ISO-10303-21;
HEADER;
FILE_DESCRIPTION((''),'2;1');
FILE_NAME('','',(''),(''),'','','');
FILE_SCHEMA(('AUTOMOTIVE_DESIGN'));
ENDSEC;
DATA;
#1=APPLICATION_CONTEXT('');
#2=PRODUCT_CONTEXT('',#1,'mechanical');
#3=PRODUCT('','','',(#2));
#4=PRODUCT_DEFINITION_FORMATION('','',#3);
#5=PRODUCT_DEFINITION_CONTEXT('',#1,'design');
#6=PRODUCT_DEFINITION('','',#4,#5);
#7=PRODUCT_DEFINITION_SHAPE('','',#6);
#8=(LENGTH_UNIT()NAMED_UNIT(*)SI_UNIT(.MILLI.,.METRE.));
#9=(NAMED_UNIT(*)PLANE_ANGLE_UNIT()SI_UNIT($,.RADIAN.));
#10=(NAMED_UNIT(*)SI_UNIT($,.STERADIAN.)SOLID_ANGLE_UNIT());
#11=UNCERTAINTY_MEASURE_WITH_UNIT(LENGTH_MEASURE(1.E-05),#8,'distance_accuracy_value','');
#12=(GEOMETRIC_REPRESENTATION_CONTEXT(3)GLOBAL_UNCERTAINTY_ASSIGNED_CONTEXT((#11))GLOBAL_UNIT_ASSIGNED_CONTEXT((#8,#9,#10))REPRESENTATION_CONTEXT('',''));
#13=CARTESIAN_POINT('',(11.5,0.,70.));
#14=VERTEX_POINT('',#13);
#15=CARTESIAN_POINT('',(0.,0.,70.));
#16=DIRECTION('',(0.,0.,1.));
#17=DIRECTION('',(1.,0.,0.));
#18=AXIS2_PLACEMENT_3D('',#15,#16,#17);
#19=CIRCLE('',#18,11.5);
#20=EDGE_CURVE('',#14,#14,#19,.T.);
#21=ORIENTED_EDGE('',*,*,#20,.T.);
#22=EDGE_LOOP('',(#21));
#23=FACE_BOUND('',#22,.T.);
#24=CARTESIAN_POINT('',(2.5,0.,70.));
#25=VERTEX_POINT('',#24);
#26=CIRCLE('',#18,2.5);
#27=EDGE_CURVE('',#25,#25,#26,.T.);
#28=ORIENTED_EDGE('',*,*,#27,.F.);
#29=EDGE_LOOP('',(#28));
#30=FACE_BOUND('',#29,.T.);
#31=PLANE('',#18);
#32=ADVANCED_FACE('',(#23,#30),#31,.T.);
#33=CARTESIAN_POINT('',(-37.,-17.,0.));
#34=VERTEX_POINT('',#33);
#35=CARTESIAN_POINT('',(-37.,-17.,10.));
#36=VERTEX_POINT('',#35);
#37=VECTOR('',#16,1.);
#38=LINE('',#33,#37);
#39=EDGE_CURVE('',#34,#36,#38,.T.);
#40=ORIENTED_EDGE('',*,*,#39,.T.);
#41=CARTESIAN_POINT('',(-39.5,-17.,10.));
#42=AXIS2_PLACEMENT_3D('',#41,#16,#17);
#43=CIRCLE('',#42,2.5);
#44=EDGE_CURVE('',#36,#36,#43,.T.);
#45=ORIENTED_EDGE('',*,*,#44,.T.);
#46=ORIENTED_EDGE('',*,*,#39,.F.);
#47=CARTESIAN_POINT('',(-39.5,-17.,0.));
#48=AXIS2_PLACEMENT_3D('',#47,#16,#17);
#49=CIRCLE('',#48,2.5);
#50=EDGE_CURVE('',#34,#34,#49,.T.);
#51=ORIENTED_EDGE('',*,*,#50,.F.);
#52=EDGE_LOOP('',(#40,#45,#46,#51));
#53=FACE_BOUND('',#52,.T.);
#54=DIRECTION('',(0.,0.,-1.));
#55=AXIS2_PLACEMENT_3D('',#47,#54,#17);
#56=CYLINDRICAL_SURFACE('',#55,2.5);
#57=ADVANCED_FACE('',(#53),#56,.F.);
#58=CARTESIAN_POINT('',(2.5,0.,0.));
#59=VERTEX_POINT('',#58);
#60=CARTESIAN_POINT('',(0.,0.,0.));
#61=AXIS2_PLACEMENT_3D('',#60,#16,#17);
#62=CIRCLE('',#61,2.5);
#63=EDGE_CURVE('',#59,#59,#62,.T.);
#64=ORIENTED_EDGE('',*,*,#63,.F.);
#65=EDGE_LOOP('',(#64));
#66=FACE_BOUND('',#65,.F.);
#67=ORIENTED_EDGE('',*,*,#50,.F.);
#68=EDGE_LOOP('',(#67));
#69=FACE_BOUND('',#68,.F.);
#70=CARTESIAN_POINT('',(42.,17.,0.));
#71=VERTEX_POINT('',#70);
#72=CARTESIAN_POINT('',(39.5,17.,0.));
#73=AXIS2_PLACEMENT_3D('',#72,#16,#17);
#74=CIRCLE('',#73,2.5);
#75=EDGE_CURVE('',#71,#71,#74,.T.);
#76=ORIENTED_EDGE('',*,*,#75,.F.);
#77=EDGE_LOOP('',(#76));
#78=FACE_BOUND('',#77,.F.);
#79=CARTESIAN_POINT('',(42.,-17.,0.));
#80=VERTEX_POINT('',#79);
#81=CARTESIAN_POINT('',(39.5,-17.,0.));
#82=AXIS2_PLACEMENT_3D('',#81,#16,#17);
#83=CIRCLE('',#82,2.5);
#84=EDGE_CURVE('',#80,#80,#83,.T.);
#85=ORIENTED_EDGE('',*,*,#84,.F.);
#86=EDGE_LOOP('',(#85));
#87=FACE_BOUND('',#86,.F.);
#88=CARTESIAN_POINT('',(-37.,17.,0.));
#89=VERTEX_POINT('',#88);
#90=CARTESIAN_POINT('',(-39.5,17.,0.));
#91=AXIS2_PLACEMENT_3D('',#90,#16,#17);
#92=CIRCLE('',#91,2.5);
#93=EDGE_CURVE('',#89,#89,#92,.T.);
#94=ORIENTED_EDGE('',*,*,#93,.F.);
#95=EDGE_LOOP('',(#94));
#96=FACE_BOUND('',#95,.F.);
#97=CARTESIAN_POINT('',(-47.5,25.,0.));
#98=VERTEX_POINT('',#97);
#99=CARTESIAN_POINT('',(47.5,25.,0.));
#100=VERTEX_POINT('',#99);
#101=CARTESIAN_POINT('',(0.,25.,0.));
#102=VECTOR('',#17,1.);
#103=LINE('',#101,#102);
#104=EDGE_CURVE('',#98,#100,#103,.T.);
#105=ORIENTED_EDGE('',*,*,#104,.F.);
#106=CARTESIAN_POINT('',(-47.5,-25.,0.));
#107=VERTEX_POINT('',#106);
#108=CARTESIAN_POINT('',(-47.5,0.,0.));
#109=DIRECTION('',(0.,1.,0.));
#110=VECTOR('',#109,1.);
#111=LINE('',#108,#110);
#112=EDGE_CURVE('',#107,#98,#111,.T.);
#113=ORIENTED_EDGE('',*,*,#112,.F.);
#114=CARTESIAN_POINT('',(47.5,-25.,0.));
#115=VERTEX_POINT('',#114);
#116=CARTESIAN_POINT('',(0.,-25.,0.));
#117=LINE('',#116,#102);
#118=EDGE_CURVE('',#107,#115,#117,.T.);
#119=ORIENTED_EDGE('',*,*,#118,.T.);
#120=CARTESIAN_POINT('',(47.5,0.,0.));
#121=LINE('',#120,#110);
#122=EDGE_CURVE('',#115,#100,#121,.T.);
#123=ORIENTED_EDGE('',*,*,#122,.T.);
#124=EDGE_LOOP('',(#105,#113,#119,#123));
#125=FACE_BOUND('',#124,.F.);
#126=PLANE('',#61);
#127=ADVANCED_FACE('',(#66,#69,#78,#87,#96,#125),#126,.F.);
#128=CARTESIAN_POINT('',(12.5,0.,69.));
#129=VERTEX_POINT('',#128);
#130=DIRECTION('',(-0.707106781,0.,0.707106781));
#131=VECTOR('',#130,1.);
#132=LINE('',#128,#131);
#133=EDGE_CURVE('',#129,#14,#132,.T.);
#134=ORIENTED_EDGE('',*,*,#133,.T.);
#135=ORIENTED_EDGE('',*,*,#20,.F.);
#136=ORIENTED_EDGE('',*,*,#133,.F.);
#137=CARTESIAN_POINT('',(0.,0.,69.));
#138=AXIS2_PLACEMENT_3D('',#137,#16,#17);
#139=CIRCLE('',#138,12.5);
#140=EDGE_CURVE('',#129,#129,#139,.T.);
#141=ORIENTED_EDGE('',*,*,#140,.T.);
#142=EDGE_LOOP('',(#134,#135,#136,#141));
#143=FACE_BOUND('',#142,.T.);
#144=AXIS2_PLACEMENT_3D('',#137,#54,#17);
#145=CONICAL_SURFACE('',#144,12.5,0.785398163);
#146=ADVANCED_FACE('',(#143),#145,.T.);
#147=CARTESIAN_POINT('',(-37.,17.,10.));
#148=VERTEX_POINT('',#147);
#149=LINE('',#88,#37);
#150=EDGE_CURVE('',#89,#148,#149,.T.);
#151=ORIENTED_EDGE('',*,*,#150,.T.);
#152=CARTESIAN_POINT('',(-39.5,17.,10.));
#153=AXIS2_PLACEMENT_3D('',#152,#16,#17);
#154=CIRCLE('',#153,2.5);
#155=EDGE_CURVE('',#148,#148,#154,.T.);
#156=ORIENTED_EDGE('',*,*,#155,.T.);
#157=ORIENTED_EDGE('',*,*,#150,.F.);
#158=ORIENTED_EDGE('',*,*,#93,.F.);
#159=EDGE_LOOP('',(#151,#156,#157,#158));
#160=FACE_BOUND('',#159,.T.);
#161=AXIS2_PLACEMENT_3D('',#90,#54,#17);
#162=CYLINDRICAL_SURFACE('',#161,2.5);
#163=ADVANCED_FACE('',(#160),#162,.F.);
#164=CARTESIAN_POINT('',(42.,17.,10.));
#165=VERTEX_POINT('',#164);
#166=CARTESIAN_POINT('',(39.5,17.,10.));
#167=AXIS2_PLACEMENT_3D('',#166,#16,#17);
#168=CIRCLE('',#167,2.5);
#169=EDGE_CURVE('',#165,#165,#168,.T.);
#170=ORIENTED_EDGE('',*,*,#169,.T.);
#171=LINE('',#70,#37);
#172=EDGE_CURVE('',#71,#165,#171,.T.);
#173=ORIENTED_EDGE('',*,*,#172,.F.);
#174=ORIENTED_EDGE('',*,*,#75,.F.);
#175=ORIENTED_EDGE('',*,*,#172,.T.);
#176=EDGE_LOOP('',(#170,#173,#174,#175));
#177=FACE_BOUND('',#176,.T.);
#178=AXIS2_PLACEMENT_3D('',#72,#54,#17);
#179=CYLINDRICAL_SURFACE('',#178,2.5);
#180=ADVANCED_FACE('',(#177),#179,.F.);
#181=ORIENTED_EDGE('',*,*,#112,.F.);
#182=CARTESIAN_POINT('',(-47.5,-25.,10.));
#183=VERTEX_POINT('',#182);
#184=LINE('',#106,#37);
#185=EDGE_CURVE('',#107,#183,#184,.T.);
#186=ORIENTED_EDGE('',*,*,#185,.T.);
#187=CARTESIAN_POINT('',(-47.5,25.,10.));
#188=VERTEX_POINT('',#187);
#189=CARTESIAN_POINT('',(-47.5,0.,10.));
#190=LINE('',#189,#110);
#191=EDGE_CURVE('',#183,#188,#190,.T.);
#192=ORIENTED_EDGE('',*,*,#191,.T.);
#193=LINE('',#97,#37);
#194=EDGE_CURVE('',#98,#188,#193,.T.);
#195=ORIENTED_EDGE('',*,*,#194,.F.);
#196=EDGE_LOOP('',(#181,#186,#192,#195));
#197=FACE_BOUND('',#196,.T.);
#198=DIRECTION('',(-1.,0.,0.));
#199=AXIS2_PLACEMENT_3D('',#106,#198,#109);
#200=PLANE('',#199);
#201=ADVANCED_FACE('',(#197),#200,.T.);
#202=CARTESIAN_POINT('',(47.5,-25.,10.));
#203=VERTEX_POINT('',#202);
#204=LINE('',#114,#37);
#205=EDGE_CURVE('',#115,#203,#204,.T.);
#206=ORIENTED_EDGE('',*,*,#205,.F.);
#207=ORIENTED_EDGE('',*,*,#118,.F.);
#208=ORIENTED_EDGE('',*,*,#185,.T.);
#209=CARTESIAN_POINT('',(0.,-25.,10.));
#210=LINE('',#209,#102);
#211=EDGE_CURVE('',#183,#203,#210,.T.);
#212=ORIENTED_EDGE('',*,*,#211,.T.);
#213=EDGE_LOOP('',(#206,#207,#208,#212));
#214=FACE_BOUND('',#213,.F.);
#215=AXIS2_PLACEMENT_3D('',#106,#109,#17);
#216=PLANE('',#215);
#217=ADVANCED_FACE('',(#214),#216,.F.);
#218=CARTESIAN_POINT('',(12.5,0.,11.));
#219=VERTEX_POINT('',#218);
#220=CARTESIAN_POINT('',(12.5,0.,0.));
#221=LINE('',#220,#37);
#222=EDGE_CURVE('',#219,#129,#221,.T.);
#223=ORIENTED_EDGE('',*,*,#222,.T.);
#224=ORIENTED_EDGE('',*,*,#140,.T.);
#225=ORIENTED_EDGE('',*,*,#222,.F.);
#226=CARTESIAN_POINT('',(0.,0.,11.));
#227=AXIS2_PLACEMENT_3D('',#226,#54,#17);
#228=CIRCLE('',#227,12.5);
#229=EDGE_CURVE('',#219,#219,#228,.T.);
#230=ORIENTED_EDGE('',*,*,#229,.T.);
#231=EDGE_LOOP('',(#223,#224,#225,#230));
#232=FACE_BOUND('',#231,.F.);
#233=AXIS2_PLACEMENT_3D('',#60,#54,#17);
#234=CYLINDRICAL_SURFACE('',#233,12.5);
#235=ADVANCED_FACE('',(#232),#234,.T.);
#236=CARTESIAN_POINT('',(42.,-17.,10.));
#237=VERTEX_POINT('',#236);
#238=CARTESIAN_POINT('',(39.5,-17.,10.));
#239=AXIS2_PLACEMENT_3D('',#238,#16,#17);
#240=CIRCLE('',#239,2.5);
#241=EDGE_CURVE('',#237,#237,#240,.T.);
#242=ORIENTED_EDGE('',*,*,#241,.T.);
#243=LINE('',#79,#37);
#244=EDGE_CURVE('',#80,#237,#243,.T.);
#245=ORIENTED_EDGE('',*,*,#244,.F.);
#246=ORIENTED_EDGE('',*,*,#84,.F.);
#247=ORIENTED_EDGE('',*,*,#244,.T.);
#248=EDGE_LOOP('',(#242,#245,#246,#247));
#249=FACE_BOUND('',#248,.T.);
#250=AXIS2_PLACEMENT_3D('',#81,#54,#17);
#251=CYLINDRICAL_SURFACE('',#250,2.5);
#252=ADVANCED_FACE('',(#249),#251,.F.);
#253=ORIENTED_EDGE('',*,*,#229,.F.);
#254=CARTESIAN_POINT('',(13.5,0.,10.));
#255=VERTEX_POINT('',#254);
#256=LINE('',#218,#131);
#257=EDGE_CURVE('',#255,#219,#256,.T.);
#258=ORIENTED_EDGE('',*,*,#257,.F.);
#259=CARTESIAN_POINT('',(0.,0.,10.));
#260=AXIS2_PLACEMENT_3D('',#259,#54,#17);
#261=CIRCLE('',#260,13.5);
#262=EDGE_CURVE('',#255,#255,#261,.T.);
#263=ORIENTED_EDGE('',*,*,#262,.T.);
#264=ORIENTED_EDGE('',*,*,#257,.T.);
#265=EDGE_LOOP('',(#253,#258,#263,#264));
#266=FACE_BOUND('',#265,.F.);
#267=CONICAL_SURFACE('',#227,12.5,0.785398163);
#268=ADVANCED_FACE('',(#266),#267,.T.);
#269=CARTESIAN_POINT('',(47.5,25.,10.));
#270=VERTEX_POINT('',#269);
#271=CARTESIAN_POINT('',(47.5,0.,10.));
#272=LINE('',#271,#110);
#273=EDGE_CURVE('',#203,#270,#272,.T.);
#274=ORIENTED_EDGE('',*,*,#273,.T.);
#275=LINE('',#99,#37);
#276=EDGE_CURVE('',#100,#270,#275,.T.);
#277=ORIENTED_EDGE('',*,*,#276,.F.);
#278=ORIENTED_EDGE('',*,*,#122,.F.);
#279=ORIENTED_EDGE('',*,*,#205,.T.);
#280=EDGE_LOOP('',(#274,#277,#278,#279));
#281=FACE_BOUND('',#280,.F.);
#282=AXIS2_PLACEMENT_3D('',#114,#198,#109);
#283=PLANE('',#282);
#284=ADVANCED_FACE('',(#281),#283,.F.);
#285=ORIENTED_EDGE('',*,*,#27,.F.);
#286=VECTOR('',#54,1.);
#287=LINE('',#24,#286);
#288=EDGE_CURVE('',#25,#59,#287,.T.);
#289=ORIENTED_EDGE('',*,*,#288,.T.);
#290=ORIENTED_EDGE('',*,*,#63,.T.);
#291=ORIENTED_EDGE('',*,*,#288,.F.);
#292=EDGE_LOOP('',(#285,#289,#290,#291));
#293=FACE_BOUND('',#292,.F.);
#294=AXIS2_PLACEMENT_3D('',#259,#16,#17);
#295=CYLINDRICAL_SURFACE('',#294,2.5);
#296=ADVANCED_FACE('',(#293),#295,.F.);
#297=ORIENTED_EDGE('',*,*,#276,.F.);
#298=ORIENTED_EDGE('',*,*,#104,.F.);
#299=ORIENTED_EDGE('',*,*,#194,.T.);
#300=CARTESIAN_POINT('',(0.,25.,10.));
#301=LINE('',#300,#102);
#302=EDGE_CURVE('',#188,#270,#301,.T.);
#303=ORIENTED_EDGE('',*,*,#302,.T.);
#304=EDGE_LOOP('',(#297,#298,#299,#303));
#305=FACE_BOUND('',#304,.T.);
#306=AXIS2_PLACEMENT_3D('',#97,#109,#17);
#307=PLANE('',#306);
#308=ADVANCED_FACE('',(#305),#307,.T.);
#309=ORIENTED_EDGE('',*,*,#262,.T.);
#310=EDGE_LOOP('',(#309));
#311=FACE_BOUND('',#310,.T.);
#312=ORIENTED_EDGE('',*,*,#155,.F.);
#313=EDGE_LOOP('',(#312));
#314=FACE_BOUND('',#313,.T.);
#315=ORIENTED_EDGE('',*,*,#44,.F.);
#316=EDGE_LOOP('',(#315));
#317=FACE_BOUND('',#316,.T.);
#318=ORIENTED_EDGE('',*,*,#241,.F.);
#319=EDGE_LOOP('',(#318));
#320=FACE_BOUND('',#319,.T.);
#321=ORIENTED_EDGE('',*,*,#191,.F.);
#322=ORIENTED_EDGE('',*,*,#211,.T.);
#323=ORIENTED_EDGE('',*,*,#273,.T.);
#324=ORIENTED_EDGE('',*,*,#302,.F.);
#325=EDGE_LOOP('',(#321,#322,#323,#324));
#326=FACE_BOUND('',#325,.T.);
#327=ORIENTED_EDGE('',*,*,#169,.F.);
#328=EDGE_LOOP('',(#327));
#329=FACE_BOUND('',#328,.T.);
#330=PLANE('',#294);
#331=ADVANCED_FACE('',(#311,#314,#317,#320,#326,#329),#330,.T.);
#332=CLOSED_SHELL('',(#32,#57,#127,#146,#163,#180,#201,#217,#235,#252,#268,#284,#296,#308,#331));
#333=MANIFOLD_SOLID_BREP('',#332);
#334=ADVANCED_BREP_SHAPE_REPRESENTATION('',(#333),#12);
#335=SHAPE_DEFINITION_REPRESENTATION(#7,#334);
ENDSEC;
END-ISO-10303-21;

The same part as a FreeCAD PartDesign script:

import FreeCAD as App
import Part
import Sketcher
from FreeCAD import Vector
Q = App.Units.Quantity


def edges_at(feature, points):
    """Names of the edges that pass closest to the given points."""
    edges = feature.Shape.Edges
    near = lambda p: min(range(len(edges)), key=lambda i: edges[i].distToShape(Part.Vertex(*p))[0])
    return sorted({f"Edge{near(p) + 1}" for p in points})


def add_polygon(sketch, points):
    """Adds a closed chain of lines whose ends are joined by coincident constraints."""
    first, n = sketch.GeometryCount, len(points)
    for a, b in zip(points, points[1:] + points[:1]):
        sketch.addGeometry(Part.LineSegment(App.Vector(*a, 0), App.Vector(*b, 0)), False)
    for i in range(n):
        sketch.addConstraint(Sketcher.Constraint("Coincident", first + i, 2, first + (i + 1) % n, 1))

doc = App.newDocument("Part")
body = doc.addObject("PartDesign::Body", "Body")

# Sketch on XY plane
sketch1 = body.newObject("Sketcher::SketchObject", "Sketch")
sketch1.AttachmentSupport = (doc.getObject("XY_Plane"), [""])
sketch1.MapMode = "FlatFace"
add_polygon(sketch1, [(-47.5, 25), (-47.5, -25), (47.5, -25), (47.5, 25)])  # lines 0-3
sketch1.addGeometry(Part.Circle(Vector(-39.5, -17, 0), Vector(0, 0, 1), 2.5), False)  # 4
sketch1.addGeometry(Part.Circle(Vector(39.5, -17, 0), Vector(0, 0, 1), 2.5), False)  # 5
sketch1.addGeometry(Part.Circle(Vector(-39.5, 17, 0), Vector(0, 0, 1), 2.5), False)  # 6
sketch1.addGeometry(Part.Circle(Vector(39.5, 17, 0), Vector(0, 0, 1), 2.5), False)  # 7
sketch1.addConstraint([
    Sketcher.Constraint("Vertical", 0),
    Sketcher.Constraint("Horizontal", 1),
    Sketcher.Constraint("Vertical", 2),
    Sketcher.Constraint("Horizontal", 3),
    Sketcher.Constraint("Equal", 4, 5),
    Sketcher.Constraint("Equal", 5, 6),
    Sketcher.Constraint("Equal", 6, 7),
    Sketcher.Constraint("Symmetric", 5, 3, 6, 3, -1, 1),
    Sketcher.Constraint("Symmetric", 4, 3, 7, 3, -1, 1),
    Sketcher.Constraint("Symmetric", 0, 2, 2, 2, -1, 1),
    Sketcher.Constraint("Symmetric", 4, 3, 5, 3, -2),
    Sketcher.Constraint("Diameter", 4, Q("5 mm")),
    Sketcher.Constraint("DistanceX", 1, 1, 1, 2, Q("95 mm")),
    Sketcher.Constraint("DistanceY", 0, 2, 0, 1, Q("50 mm")),
    Sketcher.Constraint("DistanceY", 4, 3, -1, 1, Q("17 mm")),
    Sketcher.Constraint("DistanceX", 4, 3, 5, 3, Q("79 mm")),
])
pad1 = body.newObject("PartDesign::Pad", "Pad")
pad1.Profile = sketch1
pad1.Length = 10

# Sketch on XY plane
sketch2 = body.newObject("Sketcher::SketchObject", "Sketch001")
sketch2.AttachmentSupport = (doc.getObject("XY_Plane"), [""])
sketch2.MapMode = "FlatFace"
sketch2.addGeometry([
    Part.Circle(Vector(0, 0, 0), Vector(0, 0, 1), 12.5),
    Part.Circle(Vector(0, 0, 0), Vector(0, 0, 1), 2.5),
], False)
sketch2.addConstraint([
    Sketcher.Constraint("Coincident", 0, 3, -1, 1),
    Sketcher.Constraint("Coincident", 1, 3, -1, 1),
    Sketcher.Constraint("Diameter", 0, Q("25 mm")),
    Sketcher.Constraint("Diameter", 1, Q("5 mm")),
])
pad2 = body.newObject("PartDesign::Pad", "Pad001")
pad2.Profile = sketch2
pad2.Length = 70

# Sketch on XY plane
sketch3 = body.newObject("Sketcher::SketchObject", "Sketch002")
sketch3.AttachmentSupport = (doc.getObject("XY_Plane"), [""])
sketch3.MapMode = "FlatFace"
sketch3.AttachmentOffset = App.Placement(Vector(0, 0, 10), App.Rotation())
sketch3.addGeometry(Part.Circle(Vector(0, 0, 0), Vector(0, 0, 1), 2.5), False)
sketch3.addConstraint([
    Sketcher.Constraint("Coincident", 0, 3, -1, 1),
    Sketcher.Constraint("Diameter", 0, Q("5 mm")),
])
pocket1 = body.newObject("PartDesign::Pocket", "Pocket")
pocket1.Profile = sketch3
pocket1.Length = 100
doc.recompute()

chamfer = body.newObject("PartDesign::Chamfer", "Chamfer")
chamfer.Base = (pocket1, edges_at(pocket1, [(-12.5, 0, 70), (-12.5, 0, 10)]))
chamfer.Size = 1

doc.recompute()
